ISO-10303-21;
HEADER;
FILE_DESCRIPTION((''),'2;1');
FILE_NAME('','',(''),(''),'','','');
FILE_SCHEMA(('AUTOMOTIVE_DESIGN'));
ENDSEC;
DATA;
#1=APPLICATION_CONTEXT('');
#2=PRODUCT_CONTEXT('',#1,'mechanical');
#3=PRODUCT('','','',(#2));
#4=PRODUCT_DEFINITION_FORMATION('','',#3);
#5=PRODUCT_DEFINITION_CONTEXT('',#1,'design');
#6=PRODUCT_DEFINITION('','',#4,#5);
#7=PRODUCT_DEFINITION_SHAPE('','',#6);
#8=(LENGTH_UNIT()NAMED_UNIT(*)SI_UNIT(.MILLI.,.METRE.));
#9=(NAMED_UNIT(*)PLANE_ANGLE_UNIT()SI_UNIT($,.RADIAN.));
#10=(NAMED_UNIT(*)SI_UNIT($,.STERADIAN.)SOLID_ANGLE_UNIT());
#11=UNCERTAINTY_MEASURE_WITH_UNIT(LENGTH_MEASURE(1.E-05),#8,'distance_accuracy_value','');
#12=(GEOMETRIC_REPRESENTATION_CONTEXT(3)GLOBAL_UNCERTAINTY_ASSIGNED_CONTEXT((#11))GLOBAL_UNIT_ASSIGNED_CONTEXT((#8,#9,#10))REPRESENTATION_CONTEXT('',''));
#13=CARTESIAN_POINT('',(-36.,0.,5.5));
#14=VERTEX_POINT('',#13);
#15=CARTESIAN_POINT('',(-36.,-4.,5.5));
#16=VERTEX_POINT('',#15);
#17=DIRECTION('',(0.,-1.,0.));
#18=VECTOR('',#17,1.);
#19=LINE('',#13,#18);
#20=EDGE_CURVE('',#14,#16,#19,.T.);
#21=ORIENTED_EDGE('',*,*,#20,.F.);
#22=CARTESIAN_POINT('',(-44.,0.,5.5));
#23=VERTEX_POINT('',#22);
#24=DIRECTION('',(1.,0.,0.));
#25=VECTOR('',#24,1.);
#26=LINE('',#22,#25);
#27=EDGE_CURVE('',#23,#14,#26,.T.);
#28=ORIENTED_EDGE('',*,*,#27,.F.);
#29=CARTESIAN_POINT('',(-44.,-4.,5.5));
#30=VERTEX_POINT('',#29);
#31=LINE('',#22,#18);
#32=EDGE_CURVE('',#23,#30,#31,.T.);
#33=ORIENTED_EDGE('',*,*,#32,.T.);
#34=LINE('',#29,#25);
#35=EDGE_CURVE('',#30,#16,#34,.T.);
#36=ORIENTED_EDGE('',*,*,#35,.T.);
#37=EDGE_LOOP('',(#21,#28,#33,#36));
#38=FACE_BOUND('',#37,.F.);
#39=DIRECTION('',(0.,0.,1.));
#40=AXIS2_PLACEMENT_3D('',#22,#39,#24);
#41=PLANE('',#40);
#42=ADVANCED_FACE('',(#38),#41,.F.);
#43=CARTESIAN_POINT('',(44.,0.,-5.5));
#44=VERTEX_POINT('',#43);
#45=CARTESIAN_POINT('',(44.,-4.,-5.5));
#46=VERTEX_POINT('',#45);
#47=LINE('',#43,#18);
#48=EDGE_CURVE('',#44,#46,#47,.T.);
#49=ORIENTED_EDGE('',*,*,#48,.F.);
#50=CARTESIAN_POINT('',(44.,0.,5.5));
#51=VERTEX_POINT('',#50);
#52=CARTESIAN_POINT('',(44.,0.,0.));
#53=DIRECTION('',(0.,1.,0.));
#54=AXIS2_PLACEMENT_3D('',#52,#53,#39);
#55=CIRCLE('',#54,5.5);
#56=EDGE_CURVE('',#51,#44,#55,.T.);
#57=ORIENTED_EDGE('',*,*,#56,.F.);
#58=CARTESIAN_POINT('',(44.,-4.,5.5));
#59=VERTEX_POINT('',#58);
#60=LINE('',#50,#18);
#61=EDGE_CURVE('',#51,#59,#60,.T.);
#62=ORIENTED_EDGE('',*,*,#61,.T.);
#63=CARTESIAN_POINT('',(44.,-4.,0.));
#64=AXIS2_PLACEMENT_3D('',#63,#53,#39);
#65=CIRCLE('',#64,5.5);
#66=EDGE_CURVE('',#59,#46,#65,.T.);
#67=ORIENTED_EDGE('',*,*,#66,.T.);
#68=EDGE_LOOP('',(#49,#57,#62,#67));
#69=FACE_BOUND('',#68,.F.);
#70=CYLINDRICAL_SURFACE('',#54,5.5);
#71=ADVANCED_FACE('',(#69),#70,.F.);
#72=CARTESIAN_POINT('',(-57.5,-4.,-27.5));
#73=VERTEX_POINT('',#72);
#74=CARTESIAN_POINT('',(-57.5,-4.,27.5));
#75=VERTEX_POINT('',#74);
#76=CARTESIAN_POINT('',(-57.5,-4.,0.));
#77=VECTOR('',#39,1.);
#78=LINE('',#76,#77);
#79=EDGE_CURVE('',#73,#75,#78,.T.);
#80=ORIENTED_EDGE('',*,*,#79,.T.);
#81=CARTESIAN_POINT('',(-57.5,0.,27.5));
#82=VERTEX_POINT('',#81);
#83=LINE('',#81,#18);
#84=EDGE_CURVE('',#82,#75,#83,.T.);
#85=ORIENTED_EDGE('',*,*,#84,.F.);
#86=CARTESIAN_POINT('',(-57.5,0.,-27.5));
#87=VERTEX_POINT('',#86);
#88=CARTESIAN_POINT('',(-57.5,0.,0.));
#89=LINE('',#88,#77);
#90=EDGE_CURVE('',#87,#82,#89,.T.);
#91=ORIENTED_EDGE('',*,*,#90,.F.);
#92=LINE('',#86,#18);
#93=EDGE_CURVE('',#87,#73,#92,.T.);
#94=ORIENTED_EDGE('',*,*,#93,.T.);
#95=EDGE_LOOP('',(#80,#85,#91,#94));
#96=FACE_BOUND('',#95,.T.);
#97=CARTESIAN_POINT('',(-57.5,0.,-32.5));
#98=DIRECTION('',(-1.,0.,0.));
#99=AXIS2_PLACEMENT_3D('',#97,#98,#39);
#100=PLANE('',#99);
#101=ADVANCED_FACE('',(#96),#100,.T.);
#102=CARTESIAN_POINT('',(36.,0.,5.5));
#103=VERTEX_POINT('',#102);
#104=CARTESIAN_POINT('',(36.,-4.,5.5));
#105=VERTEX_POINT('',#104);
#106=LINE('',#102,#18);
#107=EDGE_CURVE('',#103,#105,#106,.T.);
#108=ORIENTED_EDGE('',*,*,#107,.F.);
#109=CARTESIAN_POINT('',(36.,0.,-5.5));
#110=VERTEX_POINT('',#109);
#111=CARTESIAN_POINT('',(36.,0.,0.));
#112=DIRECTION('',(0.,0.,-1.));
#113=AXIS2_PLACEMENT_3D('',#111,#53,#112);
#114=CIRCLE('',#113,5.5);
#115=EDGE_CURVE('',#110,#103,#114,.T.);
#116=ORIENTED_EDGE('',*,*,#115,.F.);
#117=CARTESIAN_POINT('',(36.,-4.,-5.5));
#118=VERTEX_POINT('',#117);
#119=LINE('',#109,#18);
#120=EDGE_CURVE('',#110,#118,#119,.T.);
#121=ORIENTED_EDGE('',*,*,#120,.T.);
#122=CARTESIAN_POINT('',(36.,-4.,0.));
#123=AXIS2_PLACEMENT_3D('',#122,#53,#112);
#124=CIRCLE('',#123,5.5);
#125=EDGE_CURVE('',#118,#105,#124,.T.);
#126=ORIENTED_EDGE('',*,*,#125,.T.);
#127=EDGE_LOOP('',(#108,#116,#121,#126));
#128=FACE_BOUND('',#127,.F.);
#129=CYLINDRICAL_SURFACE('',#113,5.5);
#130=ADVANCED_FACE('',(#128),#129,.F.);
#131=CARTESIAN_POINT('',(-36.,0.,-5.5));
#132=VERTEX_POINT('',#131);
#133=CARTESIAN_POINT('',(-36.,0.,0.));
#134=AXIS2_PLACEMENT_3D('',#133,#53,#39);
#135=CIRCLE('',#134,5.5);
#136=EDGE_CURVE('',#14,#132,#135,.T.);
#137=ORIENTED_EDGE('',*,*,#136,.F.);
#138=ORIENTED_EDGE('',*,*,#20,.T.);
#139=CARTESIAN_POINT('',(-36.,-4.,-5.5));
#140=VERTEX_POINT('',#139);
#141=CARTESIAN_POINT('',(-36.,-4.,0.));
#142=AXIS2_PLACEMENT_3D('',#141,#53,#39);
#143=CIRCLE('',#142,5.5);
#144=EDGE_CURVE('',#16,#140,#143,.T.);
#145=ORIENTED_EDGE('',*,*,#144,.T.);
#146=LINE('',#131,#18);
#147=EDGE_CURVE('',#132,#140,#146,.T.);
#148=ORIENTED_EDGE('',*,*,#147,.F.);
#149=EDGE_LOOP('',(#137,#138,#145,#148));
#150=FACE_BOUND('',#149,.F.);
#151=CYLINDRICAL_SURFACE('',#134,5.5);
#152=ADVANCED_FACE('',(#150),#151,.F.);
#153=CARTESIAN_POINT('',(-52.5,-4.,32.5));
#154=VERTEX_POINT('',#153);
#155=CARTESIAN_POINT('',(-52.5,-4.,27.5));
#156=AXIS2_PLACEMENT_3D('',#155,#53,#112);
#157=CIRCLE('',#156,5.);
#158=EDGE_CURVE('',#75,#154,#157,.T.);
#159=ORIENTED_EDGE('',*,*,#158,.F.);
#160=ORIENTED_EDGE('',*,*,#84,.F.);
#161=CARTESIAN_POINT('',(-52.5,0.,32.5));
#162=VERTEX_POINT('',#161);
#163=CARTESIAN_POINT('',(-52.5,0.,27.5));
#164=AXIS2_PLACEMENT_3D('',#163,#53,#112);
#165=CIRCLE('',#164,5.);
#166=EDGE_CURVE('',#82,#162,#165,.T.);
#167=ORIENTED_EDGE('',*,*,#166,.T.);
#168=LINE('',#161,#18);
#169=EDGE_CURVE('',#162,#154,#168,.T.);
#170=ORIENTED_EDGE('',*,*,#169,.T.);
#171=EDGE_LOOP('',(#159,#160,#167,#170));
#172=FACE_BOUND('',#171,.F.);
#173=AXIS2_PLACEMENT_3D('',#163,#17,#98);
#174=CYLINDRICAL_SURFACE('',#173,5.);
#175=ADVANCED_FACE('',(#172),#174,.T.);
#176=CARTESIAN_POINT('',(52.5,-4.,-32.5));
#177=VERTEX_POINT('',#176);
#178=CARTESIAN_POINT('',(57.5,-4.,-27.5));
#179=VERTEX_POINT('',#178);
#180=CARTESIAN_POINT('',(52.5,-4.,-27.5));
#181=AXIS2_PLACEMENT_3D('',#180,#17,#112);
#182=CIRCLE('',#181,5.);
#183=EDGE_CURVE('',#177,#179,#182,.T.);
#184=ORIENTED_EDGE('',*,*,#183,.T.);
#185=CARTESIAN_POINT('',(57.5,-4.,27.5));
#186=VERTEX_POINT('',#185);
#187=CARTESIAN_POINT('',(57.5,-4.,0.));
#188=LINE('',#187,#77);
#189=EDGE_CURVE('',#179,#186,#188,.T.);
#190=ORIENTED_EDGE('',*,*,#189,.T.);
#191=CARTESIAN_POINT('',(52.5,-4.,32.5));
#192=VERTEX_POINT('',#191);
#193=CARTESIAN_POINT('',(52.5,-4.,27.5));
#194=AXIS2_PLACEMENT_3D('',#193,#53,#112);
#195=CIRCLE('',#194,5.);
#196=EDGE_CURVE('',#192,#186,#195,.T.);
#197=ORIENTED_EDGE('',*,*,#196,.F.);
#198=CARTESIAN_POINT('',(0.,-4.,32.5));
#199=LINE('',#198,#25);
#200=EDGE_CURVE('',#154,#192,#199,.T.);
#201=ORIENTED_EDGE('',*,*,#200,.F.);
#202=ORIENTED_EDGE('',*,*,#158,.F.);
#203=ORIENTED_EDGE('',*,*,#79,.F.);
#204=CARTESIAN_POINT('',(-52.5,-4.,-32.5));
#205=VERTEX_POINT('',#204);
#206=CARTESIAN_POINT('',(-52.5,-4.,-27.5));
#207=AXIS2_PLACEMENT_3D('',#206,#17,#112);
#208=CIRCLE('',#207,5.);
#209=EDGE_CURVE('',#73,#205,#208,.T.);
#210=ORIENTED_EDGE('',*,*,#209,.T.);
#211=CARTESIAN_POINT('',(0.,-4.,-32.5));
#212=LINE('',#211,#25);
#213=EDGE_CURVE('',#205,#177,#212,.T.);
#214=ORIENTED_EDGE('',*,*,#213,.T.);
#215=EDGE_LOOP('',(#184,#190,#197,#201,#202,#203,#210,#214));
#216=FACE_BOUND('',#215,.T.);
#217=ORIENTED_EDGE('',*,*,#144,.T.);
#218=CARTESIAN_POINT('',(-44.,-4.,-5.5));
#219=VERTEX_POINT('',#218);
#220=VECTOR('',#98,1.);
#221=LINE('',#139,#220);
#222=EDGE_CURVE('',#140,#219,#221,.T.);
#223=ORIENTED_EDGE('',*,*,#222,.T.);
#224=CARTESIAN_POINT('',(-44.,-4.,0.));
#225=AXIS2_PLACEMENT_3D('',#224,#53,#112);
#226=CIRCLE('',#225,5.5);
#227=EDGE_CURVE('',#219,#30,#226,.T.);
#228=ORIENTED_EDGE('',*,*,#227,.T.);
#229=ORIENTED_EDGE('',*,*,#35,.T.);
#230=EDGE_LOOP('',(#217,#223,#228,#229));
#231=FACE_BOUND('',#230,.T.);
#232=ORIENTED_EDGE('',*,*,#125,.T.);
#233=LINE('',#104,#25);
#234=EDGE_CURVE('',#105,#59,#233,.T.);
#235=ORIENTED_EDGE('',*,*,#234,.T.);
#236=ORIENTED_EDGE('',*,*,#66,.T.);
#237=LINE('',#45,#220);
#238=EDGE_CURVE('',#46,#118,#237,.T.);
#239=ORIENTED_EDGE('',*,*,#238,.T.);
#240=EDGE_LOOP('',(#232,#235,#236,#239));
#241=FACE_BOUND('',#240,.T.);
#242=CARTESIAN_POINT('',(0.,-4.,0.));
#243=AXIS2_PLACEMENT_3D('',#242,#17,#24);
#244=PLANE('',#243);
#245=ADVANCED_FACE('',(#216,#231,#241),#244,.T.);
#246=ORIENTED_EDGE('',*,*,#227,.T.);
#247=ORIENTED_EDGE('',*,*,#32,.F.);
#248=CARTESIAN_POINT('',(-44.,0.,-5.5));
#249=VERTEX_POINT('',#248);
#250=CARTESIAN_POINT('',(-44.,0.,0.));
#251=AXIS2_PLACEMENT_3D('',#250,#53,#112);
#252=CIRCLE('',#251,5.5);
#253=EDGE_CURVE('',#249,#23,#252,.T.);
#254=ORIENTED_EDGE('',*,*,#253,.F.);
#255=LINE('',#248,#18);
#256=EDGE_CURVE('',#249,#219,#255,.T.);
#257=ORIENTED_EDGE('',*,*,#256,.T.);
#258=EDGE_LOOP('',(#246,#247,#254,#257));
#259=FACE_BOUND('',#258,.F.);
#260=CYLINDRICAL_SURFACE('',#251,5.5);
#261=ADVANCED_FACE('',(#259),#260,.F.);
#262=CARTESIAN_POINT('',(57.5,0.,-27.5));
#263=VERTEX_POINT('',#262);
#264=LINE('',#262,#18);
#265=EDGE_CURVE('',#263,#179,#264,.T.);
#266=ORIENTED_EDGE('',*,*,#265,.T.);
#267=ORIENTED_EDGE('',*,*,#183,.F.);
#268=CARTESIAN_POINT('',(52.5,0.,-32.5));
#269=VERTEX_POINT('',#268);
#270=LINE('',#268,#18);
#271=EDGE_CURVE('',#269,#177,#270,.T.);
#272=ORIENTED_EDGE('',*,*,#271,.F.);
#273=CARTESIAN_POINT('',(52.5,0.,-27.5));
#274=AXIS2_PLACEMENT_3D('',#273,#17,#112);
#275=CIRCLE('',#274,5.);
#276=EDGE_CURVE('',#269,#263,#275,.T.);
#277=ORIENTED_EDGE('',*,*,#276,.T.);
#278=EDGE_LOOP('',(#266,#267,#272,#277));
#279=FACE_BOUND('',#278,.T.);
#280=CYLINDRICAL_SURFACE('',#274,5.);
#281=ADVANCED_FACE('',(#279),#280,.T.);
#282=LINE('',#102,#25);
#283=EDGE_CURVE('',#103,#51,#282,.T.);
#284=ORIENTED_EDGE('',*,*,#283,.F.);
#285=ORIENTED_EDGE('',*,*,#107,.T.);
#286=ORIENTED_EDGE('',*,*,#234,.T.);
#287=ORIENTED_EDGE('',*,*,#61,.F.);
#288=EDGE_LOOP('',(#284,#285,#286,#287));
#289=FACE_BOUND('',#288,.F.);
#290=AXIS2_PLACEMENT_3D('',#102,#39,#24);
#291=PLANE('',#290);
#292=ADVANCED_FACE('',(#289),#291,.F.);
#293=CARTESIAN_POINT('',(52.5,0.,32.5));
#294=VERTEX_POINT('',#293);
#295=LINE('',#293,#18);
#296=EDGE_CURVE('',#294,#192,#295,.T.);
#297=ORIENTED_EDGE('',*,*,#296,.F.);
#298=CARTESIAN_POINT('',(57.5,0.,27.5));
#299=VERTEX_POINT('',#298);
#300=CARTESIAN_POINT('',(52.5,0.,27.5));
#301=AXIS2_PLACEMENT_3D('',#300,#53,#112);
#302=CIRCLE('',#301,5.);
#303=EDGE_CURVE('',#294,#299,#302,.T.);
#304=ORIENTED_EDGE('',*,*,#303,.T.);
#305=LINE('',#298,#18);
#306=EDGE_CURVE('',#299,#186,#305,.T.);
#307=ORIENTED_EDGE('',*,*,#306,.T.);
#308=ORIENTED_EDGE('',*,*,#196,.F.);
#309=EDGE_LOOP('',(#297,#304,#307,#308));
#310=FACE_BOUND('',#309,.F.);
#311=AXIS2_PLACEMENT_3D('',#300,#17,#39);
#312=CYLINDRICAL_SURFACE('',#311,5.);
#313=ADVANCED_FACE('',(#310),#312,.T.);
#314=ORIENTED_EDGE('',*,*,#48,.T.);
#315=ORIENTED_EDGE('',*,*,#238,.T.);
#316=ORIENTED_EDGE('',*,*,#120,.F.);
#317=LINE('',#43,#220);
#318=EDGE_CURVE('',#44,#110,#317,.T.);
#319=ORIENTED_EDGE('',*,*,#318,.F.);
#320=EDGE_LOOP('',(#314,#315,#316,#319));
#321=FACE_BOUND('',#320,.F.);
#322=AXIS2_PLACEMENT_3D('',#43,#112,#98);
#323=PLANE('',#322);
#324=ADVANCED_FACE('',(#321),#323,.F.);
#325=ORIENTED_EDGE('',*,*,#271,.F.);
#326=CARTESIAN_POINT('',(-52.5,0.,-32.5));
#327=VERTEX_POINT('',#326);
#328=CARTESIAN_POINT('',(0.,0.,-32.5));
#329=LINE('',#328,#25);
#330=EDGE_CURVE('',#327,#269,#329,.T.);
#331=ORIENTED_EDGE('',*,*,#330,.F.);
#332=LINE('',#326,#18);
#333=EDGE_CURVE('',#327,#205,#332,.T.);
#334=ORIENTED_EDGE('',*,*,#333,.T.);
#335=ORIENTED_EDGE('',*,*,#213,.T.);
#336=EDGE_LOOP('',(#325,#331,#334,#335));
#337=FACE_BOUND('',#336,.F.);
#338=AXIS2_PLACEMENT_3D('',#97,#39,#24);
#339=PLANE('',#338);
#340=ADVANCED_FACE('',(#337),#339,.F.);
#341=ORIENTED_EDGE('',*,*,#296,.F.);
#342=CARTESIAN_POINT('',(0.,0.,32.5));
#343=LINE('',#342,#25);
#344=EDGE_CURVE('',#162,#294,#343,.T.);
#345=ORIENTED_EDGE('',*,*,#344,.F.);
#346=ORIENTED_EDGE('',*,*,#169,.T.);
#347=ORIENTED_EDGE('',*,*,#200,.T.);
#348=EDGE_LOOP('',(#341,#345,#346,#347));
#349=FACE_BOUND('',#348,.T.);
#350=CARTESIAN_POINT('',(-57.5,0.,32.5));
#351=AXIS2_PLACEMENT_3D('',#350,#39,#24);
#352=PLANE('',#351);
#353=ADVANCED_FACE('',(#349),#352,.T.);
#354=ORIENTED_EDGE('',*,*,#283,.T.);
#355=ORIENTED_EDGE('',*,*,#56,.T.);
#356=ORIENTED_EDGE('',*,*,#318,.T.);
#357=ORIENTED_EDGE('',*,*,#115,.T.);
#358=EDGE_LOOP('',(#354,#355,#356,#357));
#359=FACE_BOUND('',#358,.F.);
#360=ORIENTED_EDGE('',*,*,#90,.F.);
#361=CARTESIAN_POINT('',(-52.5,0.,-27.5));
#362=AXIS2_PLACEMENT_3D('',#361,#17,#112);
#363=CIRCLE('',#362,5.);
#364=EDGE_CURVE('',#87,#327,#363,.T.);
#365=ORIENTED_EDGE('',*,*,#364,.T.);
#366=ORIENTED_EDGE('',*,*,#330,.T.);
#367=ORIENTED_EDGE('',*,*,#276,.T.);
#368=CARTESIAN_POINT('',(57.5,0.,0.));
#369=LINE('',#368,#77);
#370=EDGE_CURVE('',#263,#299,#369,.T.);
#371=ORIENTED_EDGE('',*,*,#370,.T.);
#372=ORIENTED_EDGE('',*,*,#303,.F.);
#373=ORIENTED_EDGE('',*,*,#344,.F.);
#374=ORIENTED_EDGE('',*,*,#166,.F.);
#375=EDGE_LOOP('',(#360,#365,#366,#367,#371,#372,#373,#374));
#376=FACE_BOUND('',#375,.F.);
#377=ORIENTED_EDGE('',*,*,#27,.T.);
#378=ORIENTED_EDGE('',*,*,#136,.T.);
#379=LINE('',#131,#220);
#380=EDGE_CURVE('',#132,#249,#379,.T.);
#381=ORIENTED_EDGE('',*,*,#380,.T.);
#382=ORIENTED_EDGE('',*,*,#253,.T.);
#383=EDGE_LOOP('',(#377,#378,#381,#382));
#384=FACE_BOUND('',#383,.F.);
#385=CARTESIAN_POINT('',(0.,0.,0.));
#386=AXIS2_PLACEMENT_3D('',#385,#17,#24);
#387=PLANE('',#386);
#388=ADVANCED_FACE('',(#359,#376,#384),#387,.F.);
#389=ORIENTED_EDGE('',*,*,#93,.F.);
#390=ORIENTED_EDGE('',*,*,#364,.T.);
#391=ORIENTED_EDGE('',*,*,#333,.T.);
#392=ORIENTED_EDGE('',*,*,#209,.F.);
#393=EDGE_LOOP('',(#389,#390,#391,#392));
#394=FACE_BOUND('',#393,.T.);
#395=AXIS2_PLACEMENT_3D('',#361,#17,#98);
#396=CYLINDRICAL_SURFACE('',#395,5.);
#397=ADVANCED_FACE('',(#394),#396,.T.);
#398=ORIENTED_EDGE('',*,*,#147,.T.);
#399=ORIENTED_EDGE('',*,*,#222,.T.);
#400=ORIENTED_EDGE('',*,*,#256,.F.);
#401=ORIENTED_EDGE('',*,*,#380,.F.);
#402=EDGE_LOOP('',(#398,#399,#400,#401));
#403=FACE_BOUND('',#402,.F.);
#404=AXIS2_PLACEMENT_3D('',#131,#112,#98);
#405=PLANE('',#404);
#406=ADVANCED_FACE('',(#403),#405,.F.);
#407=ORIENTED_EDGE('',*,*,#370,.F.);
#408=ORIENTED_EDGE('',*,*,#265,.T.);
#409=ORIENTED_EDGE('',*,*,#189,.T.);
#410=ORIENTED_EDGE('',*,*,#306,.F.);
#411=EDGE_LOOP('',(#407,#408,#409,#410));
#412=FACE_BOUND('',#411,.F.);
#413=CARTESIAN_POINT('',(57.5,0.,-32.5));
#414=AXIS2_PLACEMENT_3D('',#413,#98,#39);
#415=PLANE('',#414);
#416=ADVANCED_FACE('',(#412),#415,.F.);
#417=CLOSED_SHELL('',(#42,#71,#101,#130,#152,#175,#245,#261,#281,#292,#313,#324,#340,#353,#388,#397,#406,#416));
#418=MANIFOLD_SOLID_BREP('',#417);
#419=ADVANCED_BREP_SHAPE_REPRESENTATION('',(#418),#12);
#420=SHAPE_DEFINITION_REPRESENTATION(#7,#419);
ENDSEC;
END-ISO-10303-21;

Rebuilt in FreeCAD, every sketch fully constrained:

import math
import FreeCAD as App
import Part
import Sketcher
from FreeCAD import Vector


def edges_at(feature, points):
    """Names of the edges that pass closest to the given points."""
    edges = feature.Shape.Edges
    near = lambda p: min(range(len(edges)), key=lambda i: edges[i].distToShape(Part.Vertex(*p))[0])
    return sorted({f"Edge{near(p) + 1}" for p in points})

doc = App.newDocument("Part")
body = doc.addObject("PartDesign::Body", "Body")

# Sketch on XZ plane
sketch1 = body.newObject("Sketcher::SketchObject", "Sketch")
sketch1.AttachmentSupport = (doc.getObject("XZ_Plane"), [""])
sketch1.MapMode = "FlatFace"
sketch1.addGeometry([
    Part.LineSegment(Vector(-57.5, 32.5, 0), Vector(-57.5, -32.5, 0)),  # 0
    Part.LineSegment(Vector(-57.5, -32.5, 0), Vector(57.5, -32.5, 0)),  # 1
    Part.LineSegment(Vector(57.5, -32.5, 0), Vector(57.5, 32.5, 0)),  # 2
    Part.LineSegment(Vector(57.5, 32.5, 0), Vector(-57.5, 32.5, 0)),  # 3
    Part.LineSegment(Vector(-44, 5.5, 0), Vector(-36, 5.5, 0)),  # 4
    Part.ArcOfCircle(Part.Circle(Vector(-36, 0, 0), Vector(0, 0, 1), 5.5), math.radians(-90), math.radians(90)),  # 5
    Part.LineSegment(Vector(-36, -5.5, 0), Vector(-44, -5.5, 0)),  # 6
    Part.ArcOfCircle(Part.Circle(Vector(-44, 0, 0), Vector(0, 0, 1), 5.5), math.radians(90), math.radians(270)),  # 7
    Part.ArcOfCircle(Part.Circle(Vector(44, 0, 0), Vector(0, 0, 1), 5.5), math.radians(-90), math.radians(90)),  # 8
    Part.LineSegment(Vector(44, -5.5, 0), Vector(36, -5.5, 0)),  # 9
    Part.ArcOfCircle(Part.Circle(Vector(36, 0, 0), Vector(0, 0, 1), 5.5), math.radians(90), math.radians(270)),  # 10
    Part.LineSegment(Vector(36, 5.5, 0), Vector(44, 5.5, 0)),  # 11
], False)
sketch1.addConstraint([
    Sketcher.Constraint("Coincident", 0, 2, 1, 1),
    Sketcher.Constraint("Coincident", 1, 2, 2, 1),
    Sketcher.Constraint("Coincident", 2, 2, 3, 1),
    Sketcher.Constraint("Coincident", 3, 2, 0, 1),
    Sketcher.Constraint("Tangent", 4, 2, 5, 2),
    Sketcher.Constraint("Tangent", 5, 1, 6, 1),
    Sketcher.Constraint("Tangent", 6, 2, 7, 2),
    Sketcher.Constraint("Tangent", 7, 1, 4, 1),
    Sketcher.Constraint("Tangent", 8, 1, 9, 1),
    Sketcher.Constraint("Tangent", 9, 2, 10, 2),
    Sketcher.Constraint("Tangent", 10, 1, 11, 1),
    Sketcher.Constraint("Tangent", 11, 2, 8, 2),
    Sketcher.Constraint("Vertical", 0),
    Sketcher.Constraint("Horizontal", 1),
    Sketcher.Constraint("Vertical", 2),
    Sketcher.Constraint("Horizontal", 3),
    Sketcher.Constraint("Horizontal", 4),
    Sketcher.Constraint("Horizontal", 6),
    Sketcher.Constraint("Horizontal", 9),
    Sketcher.Constraint("Horizontal", 11),
    Sketcher.Constraint("Equal", 7, 8),
    Sketcher.Constraint("Symmetric", 7, 3, 8, 3, -1, 1),
    Sketcher.Constraint("Symmetric", 0, 2, 2, 2, -1, 1),
    Sketcher.Constraint("Symmetric", 5, 3, 10, 3, -2),
    Sketcher.Constraint("Radius", 5, 5.5),
    Sketcher.Constraint("DistanceX", 1, 1, 1, 2, 115.0),
    Sketcher.Constraint("DistanceX", 4, 1, 4, 2, 8.0),
    Sketcher.Constraint("DistanceY", 0, 2, 0, 1, 65.0),
    Sketcher.Constraint("DistanceX", 5, 3, -1, 1, 36.0),
])
pad1 = body.newObject("PartDesign::Pad", "Pad")
pad1.Profile = sketch1
pad1.Length = 4
doc.recompute()

fillet = body.newObject("PartDesign::Fillet", "Fillet")
fillet.Base = (pad1, edges_at(pad1, [
    (-57.5, -2, -32.5),
    (-57.5, -2, 32.5),
    (57.5, -2, -32.5),
    (57.5, -2, 32.5),
]))
fillet.Radius = 5

doc.recompute()
